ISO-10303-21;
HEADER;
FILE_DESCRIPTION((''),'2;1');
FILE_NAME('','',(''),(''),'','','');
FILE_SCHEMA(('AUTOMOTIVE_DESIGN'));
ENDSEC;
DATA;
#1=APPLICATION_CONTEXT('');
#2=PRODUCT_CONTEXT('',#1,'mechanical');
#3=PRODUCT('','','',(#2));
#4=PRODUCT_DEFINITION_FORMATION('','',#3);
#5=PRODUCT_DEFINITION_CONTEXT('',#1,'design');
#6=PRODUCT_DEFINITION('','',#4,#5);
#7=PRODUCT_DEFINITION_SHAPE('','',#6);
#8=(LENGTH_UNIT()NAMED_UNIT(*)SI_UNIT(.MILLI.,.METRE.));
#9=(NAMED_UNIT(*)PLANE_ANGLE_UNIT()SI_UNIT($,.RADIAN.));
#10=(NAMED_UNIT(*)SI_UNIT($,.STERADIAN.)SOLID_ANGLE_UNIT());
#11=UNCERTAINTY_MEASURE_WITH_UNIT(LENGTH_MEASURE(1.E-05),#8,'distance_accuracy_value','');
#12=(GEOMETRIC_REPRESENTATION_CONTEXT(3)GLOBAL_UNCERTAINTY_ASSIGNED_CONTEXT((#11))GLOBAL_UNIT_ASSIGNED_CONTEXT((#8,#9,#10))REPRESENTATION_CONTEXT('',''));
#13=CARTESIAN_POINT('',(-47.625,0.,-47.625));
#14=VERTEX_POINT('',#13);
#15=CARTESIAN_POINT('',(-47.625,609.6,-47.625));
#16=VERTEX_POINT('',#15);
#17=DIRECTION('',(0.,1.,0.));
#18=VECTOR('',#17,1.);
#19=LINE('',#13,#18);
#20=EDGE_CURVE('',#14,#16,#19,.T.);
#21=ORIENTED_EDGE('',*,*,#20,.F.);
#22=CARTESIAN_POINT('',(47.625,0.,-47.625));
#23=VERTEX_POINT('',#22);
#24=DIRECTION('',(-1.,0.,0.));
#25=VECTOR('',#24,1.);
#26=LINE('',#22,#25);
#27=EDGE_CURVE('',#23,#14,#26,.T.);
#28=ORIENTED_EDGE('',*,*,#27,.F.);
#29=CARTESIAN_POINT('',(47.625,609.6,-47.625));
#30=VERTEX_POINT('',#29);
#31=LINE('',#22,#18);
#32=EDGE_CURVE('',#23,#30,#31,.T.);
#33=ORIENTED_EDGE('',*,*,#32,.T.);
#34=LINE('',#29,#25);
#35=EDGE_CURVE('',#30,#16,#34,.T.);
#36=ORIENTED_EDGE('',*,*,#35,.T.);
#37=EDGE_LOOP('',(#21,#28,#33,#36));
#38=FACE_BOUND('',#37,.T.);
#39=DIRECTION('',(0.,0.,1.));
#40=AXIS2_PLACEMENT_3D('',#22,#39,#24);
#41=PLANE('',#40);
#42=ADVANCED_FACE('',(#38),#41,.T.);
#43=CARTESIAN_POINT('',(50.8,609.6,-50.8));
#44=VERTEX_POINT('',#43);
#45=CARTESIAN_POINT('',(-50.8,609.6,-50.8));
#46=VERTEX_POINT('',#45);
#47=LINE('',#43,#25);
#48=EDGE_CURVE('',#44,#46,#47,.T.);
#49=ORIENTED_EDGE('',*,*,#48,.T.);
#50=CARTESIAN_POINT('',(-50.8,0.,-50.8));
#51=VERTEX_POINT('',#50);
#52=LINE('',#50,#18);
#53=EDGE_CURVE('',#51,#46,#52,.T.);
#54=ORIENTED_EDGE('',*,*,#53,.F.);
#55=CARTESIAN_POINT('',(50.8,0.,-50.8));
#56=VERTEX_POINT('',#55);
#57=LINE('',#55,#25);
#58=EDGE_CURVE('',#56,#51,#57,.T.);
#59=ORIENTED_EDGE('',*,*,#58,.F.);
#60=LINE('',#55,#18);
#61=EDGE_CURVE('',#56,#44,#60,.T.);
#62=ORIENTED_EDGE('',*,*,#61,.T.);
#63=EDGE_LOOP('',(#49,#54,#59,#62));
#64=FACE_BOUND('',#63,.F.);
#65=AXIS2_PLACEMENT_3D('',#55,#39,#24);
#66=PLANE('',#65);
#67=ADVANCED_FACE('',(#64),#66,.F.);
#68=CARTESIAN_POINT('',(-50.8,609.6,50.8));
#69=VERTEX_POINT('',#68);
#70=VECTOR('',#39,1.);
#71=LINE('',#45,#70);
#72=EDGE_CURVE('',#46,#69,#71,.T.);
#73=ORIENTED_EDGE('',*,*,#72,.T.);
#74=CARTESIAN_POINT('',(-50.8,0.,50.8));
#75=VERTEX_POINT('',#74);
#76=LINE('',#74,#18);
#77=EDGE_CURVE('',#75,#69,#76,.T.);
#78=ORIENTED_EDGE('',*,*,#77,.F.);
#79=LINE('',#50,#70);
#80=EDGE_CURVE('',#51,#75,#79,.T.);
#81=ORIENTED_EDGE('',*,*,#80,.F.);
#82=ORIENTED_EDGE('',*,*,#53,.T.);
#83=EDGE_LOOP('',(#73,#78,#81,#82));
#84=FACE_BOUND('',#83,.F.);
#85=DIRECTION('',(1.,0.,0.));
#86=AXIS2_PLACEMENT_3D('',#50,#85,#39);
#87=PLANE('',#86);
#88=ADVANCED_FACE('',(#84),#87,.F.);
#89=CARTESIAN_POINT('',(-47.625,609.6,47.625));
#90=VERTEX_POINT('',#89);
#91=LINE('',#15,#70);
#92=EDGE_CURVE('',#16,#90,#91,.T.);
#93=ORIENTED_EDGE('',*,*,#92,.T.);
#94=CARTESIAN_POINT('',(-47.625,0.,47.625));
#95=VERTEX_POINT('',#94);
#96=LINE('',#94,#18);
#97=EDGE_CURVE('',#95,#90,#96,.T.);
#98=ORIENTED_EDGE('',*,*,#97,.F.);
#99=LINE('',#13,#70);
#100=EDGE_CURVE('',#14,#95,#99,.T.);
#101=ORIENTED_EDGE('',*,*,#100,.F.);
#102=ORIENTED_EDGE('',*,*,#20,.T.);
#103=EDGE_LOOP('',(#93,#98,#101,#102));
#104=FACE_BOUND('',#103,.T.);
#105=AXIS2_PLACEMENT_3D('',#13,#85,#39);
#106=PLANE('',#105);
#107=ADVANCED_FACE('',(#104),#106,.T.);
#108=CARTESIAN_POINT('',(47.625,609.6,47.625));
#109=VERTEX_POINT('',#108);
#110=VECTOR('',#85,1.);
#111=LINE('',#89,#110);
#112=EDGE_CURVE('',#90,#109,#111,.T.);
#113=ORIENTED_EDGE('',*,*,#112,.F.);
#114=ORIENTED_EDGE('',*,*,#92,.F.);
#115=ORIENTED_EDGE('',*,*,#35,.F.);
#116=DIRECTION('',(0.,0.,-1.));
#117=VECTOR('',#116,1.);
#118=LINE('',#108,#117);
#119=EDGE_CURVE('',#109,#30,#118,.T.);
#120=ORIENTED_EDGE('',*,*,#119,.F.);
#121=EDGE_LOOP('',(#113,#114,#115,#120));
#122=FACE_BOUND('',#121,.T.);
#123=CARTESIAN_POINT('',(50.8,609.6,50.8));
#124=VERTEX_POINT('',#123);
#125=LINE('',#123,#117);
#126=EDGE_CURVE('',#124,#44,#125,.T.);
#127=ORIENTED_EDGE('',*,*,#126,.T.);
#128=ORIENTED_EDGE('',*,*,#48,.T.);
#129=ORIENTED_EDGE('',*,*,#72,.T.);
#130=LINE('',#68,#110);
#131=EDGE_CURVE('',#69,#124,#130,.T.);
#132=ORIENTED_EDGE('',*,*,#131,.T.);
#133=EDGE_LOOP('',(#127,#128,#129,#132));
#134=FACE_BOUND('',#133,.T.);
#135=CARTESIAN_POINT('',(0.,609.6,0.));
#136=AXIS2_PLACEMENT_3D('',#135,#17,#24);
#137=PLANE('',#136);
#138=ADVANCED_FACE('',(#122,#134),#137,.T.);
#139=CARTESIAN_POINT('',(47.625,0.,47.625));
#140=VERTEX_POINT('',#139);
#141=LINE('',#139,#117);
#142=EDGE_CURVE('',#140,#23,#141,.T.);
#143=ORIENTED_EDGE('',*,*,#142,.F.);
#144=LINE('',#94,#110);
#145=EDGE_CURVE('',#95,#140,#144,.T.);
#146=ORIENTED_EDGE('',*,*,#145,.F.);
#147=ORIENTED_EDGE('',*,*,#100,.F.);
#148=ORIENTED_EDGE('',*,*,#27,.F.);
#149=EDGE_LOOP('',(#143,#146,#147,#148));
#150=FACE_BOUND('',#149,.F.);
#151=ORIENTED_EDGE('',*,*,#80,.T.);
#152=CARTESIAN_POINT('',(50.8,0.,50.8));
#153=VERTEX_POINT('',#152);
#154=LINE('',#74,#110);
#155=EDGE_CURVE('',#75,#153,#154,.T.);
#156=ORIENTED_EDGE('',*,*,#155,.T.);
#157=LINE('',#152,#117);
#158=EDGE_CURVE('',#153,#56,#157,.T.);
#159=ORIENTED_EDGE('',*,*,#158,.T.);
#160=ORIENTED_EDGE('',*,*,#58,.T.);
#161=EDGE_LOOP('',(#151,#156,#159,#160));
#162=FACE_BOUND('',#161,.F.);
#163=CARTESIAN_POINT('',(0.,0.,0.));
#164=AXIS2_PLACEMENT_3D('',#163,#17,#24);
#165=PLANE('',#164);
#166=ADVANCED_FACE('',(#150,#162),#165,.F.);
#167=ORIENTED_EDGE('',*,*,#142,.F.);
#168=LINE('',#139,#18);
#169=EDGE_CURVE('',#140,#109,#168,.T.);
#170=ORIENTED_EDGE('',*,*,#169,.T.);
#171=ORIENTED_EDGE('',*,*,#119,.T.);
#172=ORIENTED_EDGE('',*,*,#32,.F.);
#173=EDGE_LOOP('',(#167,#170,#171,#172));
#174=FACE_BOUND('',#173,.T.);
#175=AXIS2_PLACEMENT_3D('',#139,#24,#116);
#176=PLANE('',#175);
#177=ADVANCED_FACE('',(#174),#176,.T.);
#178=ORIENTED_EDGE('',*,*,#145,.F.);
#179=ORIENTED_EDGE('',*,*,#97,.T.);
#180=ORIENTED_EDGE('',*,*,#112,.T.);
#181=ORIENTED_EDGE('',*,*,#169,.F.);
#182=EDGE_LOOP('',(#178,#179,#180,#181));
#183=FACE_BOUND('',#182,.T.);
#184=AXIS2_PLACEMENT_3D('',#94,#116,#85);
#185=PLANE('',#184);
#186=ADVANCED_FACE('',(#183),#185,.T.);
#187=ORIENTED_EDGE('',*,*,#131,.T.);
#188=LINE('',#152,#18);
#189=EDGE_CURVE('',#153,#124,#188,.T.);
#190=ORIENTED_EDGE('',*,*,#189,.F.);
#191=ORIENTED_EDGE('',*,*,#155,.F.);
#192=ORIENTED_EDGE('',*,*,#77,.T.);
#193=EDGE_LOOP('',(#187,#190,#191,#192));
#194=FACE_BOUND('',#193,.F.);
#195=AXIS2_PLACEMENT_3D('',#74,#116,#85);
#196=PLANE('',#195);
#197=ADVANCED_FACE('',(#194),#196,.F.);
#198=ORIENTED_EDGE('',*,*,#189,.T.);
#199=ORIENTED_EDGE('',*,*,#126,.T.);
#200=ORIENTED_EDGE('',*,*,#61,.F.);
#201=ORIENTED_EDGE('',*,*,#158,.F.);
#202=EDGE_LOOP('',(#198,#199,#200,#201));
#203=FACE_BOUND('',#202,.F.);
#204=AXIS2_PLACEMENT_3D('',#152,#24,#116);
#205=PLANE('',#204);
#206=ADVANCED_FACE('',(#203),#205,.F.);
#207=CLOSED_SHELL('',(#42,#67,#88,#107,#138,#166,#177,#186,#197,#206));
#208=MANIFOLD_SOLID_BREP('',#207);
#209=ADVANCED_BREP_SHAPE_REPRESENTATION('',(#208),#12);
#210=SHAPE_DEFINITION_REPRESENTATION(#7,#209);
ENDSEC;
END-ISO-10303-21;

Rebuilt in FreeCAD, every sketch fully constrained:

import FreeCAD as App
import Part
import Sketcher
Q = App.Units.Quantity

doc = App.newDocument("Part")
body = doc.addObject("PartDesign::Body", "Body")

# Sketch on XZ plane
sketch1 = body.newObject("Sketcher::SketchObject", "Sketch")
sketch1.AttachmentSupport = (doc.getObject("XZ_Plane"), [""])
sketch1.MapMode = "FlatFace"
sketch1.addGeometry([
    Part.LineSegment(App.Vector(-51, 51, 0), App.Vector(51, 51, 0)),  # 0
    Part.LineSegment(App.Vector(51, 51, 0), App.Vector(51, -51, 0)),  # 1
    Part.LineSegment(App.Vector(51, -51, 0), App.Vector(-51, -51, 0)),  # 2
    Part.LineSegment(App.Vector(-51, -51, 0), App.Vector(-51, 51, 0)),  # 3
    Part.LineSegment(App.Vector(48, -48, 0), App.Vector(48, 48, 0)),  # 4
    Part.LineSegment(App.Vector(48, 48, 0), App.Vector(-48, 48, 0)),  # 5
    Part.LineSegment(App.Vector(-48, 48, 0), App.Vector(-48, -48, 0)),  # 6
    Part.LineSegment(App.Vector(-48, -48, 0), App.Vector(48, -48, 0)),  # 7
], False)
sketch1.addConstraint([
    Sketcher.Constraint("Coincident", 0, 2, 1, 1),
    Sketcher.Constraint("Coincident", 1, 2, 2, 1),
    Sketcher.Constraint("Coincident", 2, 2, 3, 1),
    Sketcher.Constraint("Coincident", 3, 2, 0, 1),
    Sketcher.Constraint("Coincident", 4, 2, 5, 1),
    Sketcher.Constraint("Coincident", 5, 2, 6, 1),
    Sketcher.Constraint("Coincident", 6, 2, 7, 1),
    Sketcher.Constraint("Coincident", 7, 2, 4, 1),
    Sketcher.Constraint("Horizontal", 0),
    Sketcher.Constraint("Vertical", 1),
    Sketcher.Constraint("Horizontal", 2),
    Sketcher.Constraint("Vertical", 3),
    Sketcher.Constraint("Vertical", 4),
    Sketcher.Constraint("Horizontal", 5),
    Sketcher.Constraint("Vertical", 6),
    Sketcher.Constraint("Horizontal", 7),
    Sketcher.Constraint("Symmetric", 0, 2, 2, 2, -1, 1),
    Sketcher.Constraint("Symmetric", 4, 2, 6, 2, -1, 1),
    Sketcher.Constraint("Equal", 2, 1),
    Sketcher.Constraint("Equal", 7, 4),
    Sketcher.Constraint("DistanceX", 0, 1, 0, 2, Q("4 in")),
    Sketcher.Constraint("DistanceX", 4, 2, 0, 2, Q("0.125 in")),
])
pad1 = body.newObject("PartDesign::Pad", "Pad")
pad1.Profile = sketch1
pad1.Length = Q("24 in")
pad1.Reversed = True

doc.recompute()
